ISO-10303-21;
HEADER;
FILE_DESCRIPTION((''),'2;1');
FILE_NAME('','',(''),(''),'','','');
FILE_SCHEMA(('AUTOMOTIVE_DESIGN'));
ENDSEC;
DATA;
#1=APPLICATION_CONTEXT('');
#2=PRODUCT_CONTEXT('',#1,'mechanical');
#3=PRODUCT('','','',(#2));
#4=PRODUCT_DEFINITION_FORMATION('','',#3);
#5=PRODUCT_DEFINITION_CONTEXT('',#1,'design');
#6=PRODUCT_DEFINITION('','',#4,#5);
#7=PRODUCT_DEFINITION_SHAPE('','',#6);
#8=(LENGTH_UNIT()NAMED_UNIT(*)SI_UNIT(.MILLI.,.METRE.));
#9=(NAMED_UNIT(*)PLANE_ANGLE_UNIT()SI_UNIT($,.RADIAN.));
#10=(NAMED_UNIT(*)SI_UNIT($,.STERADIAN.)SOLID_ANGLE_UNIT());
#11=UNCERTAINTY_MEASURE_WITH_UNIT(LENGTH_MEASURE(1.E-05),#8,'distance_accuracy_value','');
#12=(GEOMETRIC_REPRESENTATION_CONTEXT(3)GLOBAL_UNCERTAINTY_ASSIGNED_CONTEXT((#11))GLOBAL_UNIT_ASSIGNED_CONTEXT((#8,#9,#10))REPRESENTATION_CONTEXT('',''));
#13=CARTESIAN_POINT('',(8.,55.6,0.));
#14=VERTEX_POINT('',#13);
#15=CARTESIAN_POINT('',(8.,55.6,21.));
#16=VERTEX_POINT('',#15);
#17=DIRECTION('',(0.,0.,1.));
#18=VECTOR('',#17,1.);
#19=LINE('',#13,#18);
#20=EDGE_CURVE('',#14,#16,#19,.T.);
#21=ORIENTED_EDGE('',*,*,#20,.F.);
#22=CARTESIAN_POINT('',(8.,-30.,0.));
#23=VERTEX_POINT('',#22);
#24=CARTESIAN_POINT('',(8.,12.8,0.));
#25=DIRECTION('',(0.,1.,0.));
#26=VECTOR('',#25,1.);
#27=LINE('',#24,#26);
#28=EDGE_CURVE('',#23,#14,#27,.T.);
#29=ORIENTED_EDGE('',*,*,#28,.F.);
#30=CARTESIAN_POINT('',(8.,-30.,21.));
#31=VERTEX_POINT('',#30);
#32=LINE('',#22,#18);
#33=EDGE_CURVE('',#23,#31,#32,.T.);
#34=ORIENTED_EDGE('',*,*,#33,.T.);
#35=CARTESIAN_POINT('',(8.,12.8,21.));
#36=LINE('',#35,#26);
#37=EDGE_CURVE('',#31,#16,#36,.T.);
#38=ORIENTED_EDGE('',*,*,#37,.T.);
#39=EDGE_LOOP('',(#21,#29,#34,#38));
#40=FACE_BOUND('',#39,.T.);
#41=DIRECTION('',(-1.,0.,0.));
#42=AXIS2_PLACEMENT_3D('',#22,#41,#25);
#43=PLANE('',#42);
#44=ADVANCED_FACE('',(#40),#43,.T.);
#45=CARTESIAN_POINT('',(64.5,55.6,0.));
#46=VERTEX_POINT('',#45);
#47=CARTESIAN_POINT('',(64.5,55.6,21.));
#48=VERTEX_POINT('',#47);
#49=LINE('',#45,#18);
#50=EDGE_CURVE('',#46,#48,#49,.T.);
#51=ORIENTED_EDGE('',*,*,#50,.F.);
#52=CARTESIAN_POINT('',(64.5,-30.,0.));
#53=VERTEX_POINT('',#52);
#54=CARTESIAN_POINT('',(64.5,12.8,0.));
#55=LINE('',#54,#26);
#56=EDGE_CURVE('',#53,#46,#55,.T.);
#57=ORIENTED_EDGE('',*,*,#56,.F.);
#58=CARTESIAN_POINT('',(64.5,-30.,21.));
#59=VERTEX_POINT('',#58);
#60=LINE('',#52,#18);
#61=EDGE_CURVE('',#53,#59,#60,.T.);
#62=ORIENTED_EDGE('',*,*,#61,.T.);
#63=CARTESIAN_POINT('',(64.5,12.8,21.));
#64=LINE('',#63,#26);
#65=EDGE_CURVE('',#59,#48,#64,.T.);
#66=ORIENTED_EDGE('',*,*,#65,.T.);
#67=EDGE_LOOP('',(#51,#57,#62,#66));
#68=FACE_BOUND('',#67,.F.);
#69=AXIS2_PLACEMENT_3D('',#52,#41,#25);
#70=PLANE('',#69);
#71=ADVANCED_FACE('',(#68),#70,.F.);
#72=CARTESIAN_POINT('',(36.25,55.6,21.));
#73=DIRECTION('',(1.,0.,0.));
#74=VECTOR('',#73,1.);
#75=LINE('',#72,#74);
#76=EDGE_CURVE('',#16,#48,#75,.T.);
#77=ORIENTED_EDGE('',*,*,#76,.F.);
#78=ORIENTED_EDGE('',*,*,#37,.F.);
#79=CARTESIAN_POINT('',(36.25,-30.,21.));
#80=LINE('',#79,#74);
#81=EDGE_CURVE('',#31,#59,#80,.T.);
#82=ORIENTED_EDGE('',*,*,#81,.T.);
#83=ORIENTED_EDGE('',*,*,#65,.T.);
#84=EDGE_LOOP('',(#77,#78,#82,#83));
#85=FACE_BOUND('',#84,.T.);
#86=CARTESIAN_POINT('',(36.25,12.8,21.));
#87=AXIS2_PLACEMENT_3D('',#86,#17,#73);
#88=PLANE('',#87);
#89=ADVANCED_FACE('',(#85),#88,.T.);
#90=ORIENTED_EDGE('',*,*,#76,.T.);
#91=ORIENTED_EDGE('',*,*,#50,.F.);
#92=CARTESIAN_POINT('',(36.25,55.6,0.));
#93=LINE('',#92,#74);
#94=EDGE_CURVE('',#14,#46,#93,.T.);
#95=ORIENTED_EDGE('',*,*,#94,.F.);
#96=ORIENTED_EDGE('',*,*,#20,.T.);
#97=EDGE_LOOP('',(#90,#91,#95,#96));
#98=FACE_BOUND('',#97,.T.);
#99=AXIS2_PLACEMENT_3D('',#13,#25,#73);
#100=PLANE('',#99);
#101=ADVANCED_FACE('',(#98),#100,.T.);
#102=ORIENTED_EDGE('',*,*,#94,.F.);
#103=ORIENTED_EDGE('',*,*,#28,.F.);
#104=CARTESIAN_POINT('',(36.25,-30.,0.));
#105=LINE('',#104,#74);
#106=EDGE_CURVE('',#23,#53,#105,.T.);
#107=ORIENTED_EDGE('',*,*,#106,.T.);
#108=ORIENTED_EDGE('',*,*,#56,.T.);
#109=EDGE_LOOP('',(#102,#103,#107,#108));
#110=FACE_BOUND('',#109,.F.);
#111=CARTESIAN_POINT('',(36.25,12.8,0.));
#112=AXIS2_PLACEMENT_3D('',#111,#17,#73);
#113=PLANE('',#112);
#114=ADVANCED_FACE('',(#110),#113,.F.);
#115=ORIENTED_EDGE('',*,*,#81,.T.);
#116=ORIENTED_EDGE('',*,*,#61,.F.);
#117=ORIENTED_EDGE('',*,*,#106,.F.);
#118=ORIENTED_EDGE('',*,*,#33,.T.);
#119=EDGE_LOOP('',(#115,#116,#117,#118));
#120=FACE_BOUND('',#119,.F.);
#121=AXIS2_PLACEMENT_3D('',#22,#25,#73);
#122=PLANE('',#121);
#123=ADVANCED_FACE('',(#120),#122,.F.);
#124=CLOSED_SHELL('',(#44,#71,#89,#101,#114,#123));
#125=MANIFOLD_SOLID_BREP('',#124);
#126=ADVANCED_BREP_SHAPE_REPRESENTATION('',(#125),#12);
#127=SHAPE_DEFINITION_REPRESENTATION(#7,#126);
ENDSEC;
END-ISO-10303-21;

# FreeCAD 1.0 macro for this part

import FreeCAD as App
import Part
import Sketcher
from FreeCAD import Vector
Q = App.Units.Quantity


def add_polygon(sketch, points):
    """Adds a closed chain of lines whose ends are joined by coincident constraints."""
    first, n = sketch.GeometryCount, len(points)
    for a, b in zip(points, points[1:] + points[:1]):
        sketch.addGeometry(Part.LineSegment(App.Vector(*a, 0), App.Vector(*b, 0)), False)
    for i in range(n):
        sketch.addConstraint(Sketcher.Constraint("Coincident", first + i, 2, first + (i + 1) % n, 1))

doc = App.newDocument("Part")
body = doc.addObject("PartDesign::Body", "Body")

# Sketch on XY plane
sketch1 = body.newObject("Sketcher::SketchObject", "Sketch")
sketch1.AttachmentSupport = (doc.getObject("XY_Plane"), [""])
sketch1.MapMode = "FlatFace"
add_polygon(sketch1, [(8, 56), (8, -30), (64, -30), (64, 56)])  # lines 0-3
sketch1.addConstraint([
    Sketcher.Constraint("Vertical", 0),
    Sketcher.Constraint("Horizontal", 1),
    Sketcher.Constraint("Vertical", 2),
    Sketcher.Constraint("Horizontal", 3),
    Sketcher.Constraint("DistanceX", 1, 1, 1, 2, Q("56.5 mm")),
    Sketcher.Constraint("DistanceY", 0, 2, 0, 1, Q("85.6 mm")),
    Sketcher.Constraint("DistanceX", -1, 1, 0, 2, Q("8 mm")),
    Sketcher.Constraint("DistanceY", 0, 2, -1, 1, Q("30 mm")),
])
pad1 = body.newObject("PartDesign::Pad", "Pad")
pad1.Profile = sketch1
pad1.Length = 21

doc.recompute()
